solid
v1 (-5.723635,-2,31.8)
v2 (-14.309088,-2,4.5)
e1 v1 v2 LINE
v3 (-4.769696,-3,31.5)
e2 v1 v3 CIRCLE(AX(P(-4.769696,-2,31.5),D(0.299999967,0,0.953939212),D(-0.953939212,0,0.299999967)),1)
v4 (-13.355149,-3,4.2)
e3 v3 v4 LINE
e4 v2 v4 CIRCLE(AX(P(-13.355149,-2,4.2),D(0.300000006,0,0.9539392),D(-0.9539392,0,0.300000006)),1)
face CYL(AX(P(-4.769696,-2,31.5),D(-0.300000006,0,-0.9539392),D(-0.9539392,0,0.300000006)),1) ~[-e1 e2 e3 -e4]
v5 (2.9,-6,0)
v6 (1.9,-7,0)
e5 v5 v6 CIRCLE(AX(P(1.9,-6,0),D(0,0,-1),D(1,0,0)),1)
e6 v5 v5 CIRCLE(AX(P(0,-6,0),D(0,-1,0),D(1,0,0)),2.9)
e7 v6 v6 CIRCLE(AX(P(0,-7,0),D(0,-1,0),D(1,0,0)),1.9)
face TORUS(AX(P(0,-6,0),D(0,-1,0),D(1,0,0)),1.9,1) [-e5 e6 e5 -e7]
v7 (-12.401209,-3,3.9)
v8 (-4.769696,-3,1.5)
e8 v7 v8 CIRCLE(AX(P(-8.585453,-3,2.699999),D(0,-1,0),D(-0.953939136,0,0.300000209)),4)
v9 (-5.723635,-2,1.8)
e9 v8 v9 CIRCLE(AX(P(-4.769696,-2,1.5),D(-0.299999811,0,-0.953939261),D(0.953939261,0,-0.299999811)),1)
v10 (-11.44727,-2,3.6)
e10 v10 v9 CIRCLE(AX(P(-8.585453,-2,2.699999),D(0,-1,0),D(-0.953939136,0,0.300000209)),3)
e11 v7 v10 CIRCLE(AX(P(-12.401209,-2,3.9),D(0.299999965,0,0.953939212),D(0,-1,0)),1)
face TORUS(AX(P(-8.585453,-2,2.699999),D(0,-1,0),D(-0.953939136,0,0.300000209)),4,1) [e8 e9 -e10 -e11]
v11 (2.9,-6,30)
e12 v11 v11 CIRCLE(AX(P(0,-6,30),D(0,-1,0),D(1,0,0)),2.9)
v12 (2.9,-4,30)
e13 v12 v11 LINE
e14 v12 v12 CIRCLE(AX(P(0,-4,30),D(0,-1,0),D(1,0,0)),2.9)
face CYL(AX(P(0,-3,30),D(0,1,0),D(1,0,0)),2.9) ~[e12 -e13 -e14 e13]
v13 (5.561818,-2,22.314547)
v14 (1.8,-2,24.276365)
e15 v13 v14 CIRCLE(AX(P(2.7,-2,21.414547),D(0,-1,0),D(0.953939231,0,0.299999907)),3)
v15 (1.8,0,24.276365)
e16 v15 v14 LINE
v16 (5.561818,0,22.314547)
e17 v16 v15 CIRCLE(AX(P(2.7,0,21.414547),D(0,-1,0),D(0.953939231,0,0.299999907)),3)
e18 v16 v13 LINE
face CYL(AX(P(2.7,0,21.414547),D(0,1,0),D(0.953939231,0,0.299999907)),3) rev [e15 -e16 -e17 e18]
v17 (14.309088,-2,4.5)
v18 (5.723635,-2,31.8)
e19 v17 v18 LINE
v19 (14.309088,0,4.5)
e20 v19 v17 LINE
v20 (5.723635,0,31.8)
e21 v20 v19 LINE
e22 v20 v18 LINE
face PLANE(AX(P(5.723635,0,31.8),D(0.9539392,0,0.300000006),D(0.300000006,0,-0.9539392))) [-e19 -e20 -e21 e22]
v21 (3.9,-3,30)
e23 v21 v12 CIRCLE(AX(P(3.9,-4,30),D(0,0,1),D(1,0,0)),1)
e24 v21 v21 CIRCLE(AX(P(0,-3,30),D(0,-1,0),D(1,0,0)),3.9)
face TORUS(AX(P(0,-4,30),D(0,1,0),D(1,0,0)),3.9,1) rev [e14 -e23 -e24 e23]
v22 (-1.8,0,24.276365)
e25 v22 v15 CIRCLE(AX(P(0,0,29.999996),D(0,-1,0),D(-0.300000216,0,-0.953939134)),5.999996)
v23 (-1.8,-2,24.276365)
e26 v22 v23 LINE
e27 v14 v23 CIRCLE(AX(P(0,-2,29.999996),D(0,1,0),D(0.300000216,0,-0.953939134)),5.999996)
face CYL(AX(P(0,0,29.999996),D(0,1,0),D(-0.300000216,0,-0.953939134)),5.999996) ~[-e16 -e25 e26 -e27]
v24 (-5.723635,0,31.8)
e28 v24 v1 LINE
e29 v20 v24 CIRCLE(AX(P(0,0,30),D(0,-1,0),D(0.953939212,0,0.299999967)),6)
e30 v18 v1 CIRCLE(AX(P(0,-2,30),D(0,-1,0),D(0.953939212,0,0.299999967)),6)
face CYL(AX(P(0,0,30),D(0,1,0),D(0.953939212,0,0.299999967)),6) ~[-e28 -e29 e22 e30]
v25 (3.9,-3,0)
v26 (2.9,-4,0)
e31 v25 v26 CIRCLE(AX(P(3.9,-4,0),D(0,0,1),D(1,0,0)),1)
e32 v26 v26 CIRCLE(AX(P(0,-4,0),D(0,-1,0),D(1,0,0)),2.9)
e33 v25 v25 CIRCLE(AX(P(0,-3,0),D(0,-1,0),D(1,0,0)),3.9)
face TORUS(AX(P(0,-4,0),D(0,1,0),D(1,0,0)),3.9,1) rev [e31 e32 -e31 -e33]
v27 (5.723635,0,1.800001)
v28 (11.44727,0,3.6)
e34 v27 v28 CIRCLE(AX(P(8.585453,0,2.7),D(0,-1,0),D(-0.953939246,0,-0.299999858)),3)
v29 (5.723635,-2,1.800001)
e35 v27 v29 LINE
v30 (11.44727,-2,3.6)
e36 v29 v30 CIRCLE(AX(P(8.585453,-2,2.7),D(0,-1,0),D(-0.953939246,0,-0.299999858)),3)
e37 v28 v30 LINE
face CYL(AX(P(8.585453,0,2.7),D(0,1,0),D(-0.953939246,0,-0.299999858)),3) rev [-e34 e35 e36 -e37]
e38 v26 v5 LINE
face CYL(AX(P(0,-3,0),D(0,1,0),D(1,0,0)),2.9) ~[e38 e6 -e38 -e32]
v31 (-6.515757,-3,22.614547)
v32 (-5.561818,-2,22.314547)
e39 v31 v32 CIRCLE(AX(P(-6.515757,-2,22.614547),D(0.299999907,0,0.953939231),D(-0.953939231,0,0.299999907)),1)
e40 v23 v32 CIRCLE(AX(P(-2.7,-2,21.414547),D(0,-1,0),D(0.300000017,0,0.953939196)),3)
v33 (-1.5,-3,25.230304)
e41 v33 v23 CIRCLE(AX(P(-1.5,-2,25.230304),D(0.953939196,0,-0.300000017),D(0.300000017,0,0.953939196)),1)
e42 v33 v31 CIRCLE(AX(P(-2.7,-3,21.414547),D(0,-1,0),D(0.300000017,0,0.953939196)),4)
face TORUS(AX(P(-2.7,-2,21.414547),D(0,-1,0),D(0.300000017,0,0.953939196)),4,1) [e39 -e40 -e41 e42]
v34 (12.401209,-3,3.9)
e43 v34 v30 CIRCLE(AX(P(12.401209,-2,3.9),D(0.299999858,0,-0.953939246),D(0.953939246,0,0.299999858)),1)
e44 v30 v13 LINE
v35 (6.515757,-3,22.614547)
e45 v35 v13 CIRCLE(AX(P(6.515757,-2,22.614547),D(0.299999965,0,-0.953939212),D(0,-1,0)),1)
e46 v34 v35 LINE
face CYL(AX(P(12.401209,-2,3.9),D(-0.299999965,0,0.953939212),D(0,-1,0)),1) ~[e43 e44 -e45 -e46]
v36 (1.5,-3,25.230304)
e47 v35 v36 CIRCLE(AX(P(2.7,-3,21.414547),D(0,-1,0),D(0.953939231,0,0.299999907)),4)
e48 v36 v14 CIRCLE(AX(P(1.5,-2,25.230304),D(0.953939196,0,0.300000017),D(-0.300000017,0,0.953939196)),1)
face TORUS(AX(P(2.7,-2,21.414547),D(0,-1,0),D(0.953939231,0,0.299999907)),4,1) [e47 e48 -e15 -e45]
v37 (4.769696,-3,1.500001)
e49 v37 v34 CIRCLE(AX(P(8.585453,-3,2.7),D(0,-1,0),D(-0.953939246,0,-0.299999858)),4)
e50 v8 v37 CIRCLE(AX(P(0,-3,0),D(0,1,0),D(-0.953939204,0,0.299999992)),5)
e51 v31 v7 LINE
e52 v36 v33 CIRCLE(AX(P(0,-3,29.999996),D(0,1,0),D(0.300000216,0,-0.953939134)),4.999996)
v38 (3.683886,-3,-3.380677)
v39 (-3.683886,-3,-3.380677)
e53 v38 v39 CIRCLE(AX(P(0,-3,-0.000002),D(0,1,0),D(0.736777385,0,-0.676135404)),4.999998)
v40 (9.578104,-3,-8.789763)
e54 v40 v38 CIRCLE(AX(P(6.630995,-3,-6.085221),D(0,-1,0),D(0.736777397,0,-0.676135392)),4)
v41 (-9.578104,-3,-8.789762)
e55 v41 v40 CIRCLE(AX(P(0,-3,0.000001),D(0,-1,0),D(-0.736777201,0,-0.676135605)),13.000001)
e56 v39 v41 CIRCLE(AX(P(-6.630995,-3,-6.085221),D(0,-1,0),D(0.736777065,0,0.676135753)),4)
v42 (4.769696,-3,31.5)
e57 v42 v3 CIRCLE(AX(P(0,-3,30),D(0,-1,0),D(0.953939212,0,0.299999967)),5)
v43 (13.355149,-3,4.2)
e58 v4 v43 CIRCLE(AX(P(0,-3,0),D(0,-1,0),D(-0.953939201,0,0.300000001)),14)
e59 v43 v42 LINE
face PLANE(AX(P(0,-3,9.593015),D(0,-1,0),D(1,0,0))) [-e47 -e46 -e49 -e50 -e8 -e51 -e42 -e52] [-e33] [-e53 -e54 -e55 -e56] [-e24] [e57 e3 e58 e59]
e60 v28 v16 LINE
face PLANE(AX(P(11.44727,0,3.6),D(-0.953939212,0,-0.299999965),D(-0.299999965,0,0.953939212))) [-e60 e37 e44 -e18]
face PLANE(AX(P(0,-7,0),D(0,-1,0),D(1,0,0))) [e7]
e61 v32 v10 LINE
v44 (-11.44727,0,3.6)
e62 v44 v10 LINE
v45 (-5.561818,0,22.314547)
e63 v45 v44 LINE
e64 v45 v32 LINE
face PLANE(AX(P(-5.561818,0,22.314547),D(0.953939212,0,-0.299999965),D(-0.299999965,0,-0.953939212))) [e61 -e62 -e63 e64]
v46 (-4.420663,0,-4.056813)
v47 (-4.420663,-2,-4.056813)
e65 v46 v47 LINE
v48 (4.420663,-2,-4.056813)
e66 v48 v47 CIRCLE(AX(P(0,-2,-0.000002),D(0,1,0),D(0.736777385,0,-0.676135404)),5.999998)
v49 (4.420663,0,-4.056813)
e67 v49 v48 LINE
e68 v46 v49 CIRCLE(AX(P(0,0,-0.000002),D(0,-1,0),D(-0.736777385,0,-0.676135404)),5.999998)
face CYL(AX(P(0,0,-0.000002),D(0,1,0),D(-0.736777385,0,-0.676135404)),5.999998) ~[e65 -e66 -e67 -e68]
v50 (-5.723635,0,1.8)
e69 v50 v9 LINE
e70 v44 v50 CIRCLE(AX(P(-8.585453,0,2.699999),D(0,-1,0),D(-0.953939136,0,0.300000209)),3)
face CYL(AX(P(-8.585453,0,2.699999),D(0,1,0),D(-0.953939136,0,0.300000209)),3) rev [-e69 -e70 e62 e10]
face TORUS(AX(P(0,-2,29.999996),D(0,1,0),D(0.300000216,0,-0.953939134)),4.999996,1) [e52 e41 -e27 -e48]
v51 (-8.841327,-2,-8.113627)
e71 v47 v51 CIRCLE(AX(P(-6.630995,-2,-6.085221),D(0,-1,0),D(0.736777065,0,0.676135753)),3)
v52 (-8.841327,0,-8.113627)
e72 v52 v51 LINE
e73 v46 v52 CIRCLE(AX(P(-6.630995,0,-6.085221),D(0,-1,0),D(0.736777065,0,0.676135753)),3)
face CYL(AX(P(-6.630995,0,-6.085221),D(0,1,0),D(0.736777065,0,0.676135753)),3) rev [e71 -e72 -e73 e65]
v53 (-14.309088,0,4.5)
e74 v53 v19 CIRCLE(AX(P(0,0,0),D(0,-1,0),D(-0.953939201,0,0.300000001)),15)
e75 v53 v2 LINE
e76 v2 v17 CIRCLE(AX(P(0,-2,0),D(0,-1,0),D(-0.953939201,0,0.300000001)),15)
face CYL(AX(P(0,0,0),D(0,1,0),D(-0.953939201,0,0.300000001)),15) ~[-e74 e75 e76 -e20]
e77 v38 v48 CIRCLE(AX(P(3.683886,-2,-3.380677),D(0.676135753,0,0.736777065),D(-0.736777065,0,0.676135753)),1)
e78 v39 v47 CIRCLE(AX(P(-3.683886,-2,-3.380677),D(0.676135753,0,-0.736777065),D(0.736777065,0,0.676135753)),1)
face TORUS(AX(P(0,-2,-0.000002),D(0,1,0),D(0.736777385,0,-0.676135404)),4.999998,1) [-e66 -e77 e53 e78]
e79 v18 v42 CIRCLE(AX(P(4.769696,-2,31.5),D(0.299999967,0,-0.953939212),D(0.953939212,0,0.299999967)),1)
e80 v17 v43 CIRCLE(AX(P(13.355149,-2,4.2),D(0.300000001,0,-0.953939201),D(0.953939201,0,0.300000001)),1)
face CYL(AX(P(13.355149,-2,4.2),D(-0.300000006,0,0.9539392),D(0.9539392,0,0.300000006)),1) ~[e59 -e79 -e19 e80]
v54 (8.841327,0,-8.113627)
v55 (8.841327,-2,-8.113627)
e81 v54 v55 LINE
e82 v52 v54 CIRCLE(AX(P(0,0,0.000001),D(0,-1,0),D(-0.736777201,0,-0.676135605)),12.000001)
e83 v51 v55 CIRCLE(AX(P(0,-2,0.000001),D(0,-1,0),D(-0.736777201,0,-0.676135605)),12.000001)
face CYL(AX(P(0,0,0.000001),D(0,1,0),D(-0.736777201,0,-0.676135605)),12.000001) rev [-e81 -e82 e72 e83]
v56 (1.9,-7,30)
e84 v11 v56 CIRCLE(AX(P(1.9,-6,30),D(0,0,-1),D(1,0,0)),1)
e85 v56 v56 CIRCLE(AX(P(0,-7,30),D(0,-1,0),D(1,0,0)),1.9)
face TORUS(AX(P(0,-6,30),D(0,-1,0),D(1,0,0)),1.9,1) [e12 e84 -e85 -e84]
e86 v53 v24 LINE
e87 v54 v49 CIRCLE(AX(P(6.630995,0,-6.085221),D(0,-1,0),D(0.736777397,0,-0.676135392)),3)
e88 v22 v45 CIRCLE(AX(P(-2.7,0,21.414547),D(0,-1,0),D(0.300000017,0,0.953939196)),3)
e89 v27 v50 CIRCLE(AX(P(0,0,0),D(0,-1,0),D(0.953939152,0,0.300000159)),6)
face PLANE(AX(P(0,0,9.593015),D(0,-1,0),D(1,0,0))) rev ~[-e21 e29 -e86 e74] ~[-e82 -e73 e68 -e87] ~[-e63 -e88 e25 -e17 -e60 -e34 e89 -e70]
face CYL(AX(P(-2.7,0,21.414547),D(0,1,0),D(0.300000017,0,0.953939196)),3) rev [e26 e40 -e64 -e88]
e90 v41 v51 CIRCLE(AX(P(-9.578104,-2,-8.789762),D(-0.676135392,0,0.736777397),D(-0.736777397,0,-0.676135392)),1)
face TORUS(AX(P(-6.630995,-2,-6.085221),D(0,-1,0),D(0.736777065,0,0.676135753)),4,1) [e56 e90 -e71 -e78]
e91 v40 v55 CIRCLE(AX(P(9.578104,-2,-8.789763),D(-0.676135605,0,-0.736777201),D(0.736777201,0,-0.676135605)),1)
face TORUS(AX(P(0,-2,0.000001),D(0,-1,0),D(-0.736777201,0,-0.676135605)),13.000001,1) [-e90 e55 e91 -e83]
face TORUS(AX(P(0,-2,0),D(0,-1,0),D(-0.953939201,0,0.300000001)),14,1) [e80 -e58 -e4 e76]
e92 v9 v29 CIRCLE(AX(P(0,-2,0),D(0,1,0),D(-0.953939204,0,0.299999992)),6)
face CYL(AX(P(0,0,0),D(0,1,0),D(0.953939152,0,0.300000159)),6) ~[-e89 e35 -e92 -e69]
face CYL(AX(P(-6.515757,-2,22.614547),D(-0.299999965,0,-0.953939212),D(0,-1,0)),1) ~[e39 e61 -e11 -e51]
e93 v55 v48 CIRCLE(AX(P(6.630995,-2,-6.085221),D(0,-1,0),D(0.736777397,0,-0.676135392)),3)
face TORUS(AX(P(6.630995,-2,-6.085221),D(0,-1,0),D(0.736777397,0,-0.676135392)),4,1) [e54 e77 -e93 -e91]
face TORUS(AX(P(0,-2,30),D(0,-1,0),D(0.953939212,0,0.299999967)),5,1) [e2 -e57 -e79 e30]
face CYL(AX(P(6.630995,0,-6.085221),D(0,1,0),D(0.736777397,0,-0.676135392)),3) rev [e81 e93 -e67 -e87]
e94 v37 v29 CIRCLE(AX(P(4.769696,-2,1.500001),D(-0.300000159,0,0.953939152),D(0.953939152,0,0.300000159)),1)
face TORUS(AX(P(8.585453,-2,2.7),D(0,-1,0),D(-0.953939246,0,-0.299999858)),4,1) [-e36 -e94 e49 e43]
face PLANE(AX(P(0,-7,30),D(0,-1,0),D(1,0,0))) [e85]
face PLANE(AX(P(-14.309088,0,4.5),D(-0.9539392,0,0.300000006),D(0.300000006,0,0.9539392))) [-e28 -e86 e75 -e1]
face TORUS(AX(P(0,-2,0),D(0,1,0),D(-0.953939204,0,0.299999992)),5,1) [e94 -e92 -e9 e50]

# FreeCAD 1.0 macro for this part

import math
import FreeCAD as App
import Part
import Sketcher

V = App.Vector
Q = App.Units.Quantity


def edges_at(feature, points):
    """Names of the edges that pass closest to the given points."""
    edges = feature.Shape.Edges
    near = lambda p: min(range(len(edges)), key=lambda i: edges[i].distToShape(Part.Vertex(*p))[0])
    return sorted({f"Edge{near(p) + 1}" for p in points})

doc = App.newDocument("Part")
body = doc.addObject("PartDesign::Body", "Body")

sketch1 = body.newObject("Sketcher::SketchObject", "Sketch")
sketch1.AttachmentSupport = (doc.getObject("XZ_Plane"), [""])
sketch1.MapMode = "FlatFace"
sketch1.addGeometry([
    Part.ArcOfCircle(Part.Circle(V(0, 30, 0), V(0, 0, 1), 6), math.radians(17), math.radians(163)),
    Part.LineSegment(V(-5.7, 31.8, 0), V(-14.3, 4.5, 0)),
    Part.ArcOfCircle(Part.Circle(V(0, 0, 0), V(0, 0, 1), 15), math.radians(163), math.radians(377)),
    Part.LineSegment(V(14.3, 4.5, 0), V(5.7, 31.8, 0)),
    Part.ArcOfCircle(Part.Circle(V(-6.6, -6.1, 0), V(0, 0, 1), 3), math.radians(43), math.radians(223)),
    Part.ArcOfCircle(Part.Circle(V(0, 0, 0), V(0, 0, 1), 6), math.radians(-137), math.radians(-43)),
    Part.ArcOfCircle(Part.Circle(V(6.6, -6.1, 0), V(0, 0, 1), 3), math.radians(-43), math.radians(137)),
    Part.ArcOfCircle(Part.Circle(V(0, 0, 0), V(0, 0, 1), 12), math.radians(-137), math.radians(-43)),
    Part.ArcOfCircle(Part.Circle(V(-8.6, 2.7, 0), V(0, 0, 1), 3), math.radians(163), math.radians(343)),
    Part.LineSegment(V(-11.4, 3.6, 0), V(-5.6, 22.3, 0)),
    Part.ArcOfCircle(Part.Circle(V(-2.7, 21.4, 0), V(0, 0, 1), 3), math.radians(73), math.radians(163)),
    Part.ArcOfCircle(Part.Circle(V(0, 30, 0), V(0, 0, 1), 6), math.radians(-107), math.radians(-73)),
    Part.ArcOfCircle(Part.Circle(V(2.7, 21.4, 0), V(0, 0, 1), 3), math.radians(17), math.radians(107)),
    Part.LineSegment(V(5.6, 22.3, 0), V(11.4, 3.6, 0)),
    Part.ArcOfCircle(Part.Circle(V(8.6, 2.7, 0), V(0, 0, 1), 3), math.radians(-163), math.radians(17)),
    Part.ArcOfCircle(Part.Circle(V(0, 0, 0), V(0, 0, 1), 6), math.radians(17), math.radians(163)),
], False)
sketch1.addConstraint([
    Sketcher.Constraint("Tangent", 0, 2, 1, 1),
    Sketcher.Constraint("Tangent", 1, 2, 2, 1),
    Sketcher.Constraint("Tangent", 2, 2, 3, 1),
    Sketcher.Constraint("Tangent", 3, 2, 0, 1),
    Sketcher.Constraint("Tangent", 4, 1, 5, 1),
    Sketcher.Constraint("Tangent", 5, 2, 6, 2),
    Sketcher.Constraint("Tangent", 6, 1, 7, 2),
    Sketcher.Constraint("Tangent", 7, 1, 4, 2),
    Sketcher.Constraint("Tangent", 8, 1, 9, 1),
    Sketcher.Constraint("Tangent", 9, 2, 10, 2),
    Sketcher.Constraint("Tangent", 10, 1, 11, 1),
    Sketcher.Constraint("Tangent", 11, 2, 12, 2),
    Sketcher.Constraint("Tangent", 12, 1, 13, 1),
    Sketcher.Constraint("Tangent", 13, 2, 14, 2),
    Sketcher.Constraint("Tangent", 14, 1, 15, 1),
    Sketcher.Constraint("Tangent", 15, 2, 8, 2),
    Sketcher.Constraint("Coincident", 2, 3, -1, 1),
    Sketcher.Constraint("Coincident", 5, 3, -1, 1),
    Sketcher.Constraint("Coincident", 7, 3, -1, 1),
    Sketcher.Constraint("Coincident", 15, 3, -1, 1),
    Sketcher.Constraint("Coincident", 11, 3, 0, 3),
    Sketcher.Constraint("Equal", 0, 5),
    Sketcher.Constraint("Equal", 6, 8),
    Sketcher.Constraint("Equal", 8, 10),
    Sketcher.Constraint("Equal", 10, 12),
    Sketcher.Constraint("Equal", 12, 14),
    Sketcher.Constraint("Equal", 5, 15),
    Sketcher.Constraint("Symmetric", 10, 3, 12, 3, -2),
    Sketcher.Constraint("Parallel", 1, 9),
    Sketcher.Constraint("Horizontal", 4, 3, 6, 3),
    Sketcher.Constraint("Horizontal", 8, 3, 14, 3),
    Sketcher.Constraint("Vertical", 3, 2, 14, 1),
    Sketcher.Constraint("Radius", 0, Q("6 mm")),
    Sketcher.Constraint("Radius", 2, Q("15 mm")),
    Sketcher.Constraint("Radius", 4, Q("3 mm")),
    Sketcher.Constraint("DistanceY", -1, 1, 0, 3, Q("30 mm")),
    Sketcher.Constraint("DistanceX", 10, 3, -1, 1, Q("2.7 mm")),
    Sketcher.Constraint("DistanceY", 4, 3, -1, 1, Q("6.085221 mm")),
])
pad1 = body.newObject("PartDesign::Pad", "Pad")
pad1.Profile = sketch1
pad1.Length = 3

sketch2 = body.newObject("Sketcher::SketchObject", "Sketch001")
sketch2.AttachmentSupport = (doc.getObject("XZ_Plane"), [""])
sketch2.MapMode = "FlatFace"
sketch2.AttachmentOffset = App.Placement(V(0, 0, 3), App.Rotation())
sketch2.addGeometry([
    Part.Circle(V(0, 0, 0), V(0, 0, 1), 2.9),
    Part.Circle(V(0, 30, 0), V(0, 0, 1), 2.9),
], False)
sketch2.addConstraint([
    Sketcher.Constraint("Coincident", 0, 3, -1, 1),
    Sketcher.Constraint("Equal", 0, 1),
    Sketcher.Constraint("PointOnObject", 1, 3, -2),
    Sketcher.Constraint("Diameter", 0, Q("5.8 mm")),
    Sketcher.Constraint("DistanceY", -1, 1, 1, 3, Q("30 mm")),
])
pad2 = body.newObject("PartDesign::Pad", "Pad001")
pad2.Profile = sketch2
pad2.Length = 4
doc.recompute()

fillet = body.newObject("PartDesign::Fillet", "Fillet")
fillet.Base = (pad2, edges_at(pad2, [
    (0, -3, 36),
    (10.016, -3, 18.15),
    (-10.016, -3, 18.15),
    (0, -3, -15),
    (-8.659, -3, -3.875),
    (0, -3, -6),
    (0, -3, -12),
    (8.659, -3, -3.875),
    (-2.9, -3, 0),
    (-4.087, -3, 24.075),
    (0, -3, 24),
    (-8.505, -3, 12.957),
    (4.087, -3, 24.075),
    (-9.485, -3, -0.162),
    (8.505, -3, 12.957),
    (0, -3, 6),
    (9.485, -3, -0.162),
    (-2.9, -3, 30),
    (-2.9, -7, 30),
    (-2.9, -7, 0),
]))
fillet.Radius = 1

doc.recompute()
